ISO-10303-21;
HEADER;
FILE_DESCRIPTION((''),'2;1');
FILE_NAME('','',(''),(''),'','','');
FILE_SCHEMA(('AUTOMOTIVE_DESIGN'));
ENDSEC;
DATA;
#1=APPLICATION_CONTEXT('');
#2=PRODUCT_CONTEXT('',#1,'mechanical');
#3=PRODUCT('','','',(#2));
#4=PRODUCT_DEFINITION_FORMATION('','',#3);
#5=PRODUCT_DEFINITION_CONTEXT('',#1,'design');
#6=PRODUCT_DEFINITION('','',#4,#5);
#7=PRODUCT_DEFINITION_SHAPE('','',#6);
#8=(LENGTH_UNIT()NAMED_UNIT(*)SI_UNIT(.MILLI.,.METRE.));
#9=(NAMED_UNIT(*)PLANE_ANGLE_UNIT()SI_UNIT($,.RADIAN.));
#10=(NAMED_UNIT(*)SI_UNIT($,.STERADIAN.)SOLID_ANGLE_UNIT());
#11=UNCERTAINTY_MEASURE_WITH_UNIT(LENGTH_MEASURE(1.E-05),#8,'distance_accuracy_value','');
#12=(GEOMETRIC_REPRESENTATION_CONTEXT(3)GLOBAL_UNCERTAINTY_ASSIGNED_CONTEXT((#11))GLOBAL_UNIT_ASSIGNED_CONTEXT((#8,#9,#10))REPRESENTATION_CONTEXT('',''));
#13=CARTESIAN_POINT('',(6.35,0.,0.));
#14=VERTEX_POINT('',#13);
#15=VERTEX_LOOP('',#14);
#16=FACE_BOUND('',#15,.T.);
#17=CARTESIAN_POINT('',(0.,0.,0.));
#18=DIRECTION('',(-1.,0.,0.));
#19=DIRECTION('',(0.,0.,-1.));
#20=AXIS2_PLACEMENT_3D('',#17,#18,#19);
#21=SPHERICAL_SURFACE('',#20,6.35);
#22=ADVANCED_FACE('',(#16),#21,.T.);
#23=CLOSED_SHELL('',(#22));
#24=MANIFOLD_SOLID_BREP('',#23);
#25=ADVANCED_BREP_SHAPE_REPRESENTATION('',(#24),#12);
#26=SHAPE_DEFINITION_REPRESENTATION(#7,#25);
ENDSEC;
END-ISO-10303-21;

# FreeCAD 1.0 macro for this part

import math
import FreeCAD as App
import Part
import Sketcher
Q = App.Units.Quantity

doc = App.newDocument("Part")
params = doc.addObject("Spreadsheet::Sheet", "Params")
for row, (alias, value) in enumerate([
    ("sketch1_radius", "0.25 in"),
    ("revolution_angle", "360 deg"),
], start=1):
    params.set(f"A{row}", alias)
    params.set(f"B{row}", "=" + value)
    params.setAlias(f"B{row}", alias)

body = doc.addObject("PartDesign::Body", "Body")

# Sketch on XZ plane
sketch1 = body.newObject("Sketcher::SketchObject", "Sketch")
sketch1.AttachmentSupport = (doc.getObject("XZ_Plane"), [""])
sketch1.MapMode = "FlatFace"
sketch1.addGeometry(Part.ArcOfCircle(Part.Circle(App.Vector(0, 0, 0), App.Vector(0, 0, 1), 6), math.radians(180), math.radians(360)), False)
sketch1.addGeometry(Part.LineSegment(App.Vector(-6, 0, 0), App.Vector(6, 0, 0)), False)
sketch1.addConstraint(Sketcher.Constraint("Coincident", 0, 1, 1, 1))
sketch1.addConstraint(Sketcher.Constraint("Coincident", 1, 2, 0, 2))
sketch1.addConstraint(Sketcher.Constraint("Horizontal", 1))
sketch1.addConstraint(Sketcher.Constraint("Coincident", 0, 3, -1, 1))
sketch1.addConstraint(Sketcher.Constraint("PointOnObject", 0, 1, -1))
sketch1.addConstraint(Sketcher.Constraint("Radius", 0, Q("0.25 in")))
sketch1.setExpression("Constraints[5]", "Params.sketch1_radius")
revolution = body.newObject("PartDesign::Revolution", "Revolution")
revolution.Profile = sketch1
revolution.ReferenceAxis = (sketch1, ["H_Axis"])
revolution.setExpression("Angle", "Params.revolution_angle")

doc.recompute()
